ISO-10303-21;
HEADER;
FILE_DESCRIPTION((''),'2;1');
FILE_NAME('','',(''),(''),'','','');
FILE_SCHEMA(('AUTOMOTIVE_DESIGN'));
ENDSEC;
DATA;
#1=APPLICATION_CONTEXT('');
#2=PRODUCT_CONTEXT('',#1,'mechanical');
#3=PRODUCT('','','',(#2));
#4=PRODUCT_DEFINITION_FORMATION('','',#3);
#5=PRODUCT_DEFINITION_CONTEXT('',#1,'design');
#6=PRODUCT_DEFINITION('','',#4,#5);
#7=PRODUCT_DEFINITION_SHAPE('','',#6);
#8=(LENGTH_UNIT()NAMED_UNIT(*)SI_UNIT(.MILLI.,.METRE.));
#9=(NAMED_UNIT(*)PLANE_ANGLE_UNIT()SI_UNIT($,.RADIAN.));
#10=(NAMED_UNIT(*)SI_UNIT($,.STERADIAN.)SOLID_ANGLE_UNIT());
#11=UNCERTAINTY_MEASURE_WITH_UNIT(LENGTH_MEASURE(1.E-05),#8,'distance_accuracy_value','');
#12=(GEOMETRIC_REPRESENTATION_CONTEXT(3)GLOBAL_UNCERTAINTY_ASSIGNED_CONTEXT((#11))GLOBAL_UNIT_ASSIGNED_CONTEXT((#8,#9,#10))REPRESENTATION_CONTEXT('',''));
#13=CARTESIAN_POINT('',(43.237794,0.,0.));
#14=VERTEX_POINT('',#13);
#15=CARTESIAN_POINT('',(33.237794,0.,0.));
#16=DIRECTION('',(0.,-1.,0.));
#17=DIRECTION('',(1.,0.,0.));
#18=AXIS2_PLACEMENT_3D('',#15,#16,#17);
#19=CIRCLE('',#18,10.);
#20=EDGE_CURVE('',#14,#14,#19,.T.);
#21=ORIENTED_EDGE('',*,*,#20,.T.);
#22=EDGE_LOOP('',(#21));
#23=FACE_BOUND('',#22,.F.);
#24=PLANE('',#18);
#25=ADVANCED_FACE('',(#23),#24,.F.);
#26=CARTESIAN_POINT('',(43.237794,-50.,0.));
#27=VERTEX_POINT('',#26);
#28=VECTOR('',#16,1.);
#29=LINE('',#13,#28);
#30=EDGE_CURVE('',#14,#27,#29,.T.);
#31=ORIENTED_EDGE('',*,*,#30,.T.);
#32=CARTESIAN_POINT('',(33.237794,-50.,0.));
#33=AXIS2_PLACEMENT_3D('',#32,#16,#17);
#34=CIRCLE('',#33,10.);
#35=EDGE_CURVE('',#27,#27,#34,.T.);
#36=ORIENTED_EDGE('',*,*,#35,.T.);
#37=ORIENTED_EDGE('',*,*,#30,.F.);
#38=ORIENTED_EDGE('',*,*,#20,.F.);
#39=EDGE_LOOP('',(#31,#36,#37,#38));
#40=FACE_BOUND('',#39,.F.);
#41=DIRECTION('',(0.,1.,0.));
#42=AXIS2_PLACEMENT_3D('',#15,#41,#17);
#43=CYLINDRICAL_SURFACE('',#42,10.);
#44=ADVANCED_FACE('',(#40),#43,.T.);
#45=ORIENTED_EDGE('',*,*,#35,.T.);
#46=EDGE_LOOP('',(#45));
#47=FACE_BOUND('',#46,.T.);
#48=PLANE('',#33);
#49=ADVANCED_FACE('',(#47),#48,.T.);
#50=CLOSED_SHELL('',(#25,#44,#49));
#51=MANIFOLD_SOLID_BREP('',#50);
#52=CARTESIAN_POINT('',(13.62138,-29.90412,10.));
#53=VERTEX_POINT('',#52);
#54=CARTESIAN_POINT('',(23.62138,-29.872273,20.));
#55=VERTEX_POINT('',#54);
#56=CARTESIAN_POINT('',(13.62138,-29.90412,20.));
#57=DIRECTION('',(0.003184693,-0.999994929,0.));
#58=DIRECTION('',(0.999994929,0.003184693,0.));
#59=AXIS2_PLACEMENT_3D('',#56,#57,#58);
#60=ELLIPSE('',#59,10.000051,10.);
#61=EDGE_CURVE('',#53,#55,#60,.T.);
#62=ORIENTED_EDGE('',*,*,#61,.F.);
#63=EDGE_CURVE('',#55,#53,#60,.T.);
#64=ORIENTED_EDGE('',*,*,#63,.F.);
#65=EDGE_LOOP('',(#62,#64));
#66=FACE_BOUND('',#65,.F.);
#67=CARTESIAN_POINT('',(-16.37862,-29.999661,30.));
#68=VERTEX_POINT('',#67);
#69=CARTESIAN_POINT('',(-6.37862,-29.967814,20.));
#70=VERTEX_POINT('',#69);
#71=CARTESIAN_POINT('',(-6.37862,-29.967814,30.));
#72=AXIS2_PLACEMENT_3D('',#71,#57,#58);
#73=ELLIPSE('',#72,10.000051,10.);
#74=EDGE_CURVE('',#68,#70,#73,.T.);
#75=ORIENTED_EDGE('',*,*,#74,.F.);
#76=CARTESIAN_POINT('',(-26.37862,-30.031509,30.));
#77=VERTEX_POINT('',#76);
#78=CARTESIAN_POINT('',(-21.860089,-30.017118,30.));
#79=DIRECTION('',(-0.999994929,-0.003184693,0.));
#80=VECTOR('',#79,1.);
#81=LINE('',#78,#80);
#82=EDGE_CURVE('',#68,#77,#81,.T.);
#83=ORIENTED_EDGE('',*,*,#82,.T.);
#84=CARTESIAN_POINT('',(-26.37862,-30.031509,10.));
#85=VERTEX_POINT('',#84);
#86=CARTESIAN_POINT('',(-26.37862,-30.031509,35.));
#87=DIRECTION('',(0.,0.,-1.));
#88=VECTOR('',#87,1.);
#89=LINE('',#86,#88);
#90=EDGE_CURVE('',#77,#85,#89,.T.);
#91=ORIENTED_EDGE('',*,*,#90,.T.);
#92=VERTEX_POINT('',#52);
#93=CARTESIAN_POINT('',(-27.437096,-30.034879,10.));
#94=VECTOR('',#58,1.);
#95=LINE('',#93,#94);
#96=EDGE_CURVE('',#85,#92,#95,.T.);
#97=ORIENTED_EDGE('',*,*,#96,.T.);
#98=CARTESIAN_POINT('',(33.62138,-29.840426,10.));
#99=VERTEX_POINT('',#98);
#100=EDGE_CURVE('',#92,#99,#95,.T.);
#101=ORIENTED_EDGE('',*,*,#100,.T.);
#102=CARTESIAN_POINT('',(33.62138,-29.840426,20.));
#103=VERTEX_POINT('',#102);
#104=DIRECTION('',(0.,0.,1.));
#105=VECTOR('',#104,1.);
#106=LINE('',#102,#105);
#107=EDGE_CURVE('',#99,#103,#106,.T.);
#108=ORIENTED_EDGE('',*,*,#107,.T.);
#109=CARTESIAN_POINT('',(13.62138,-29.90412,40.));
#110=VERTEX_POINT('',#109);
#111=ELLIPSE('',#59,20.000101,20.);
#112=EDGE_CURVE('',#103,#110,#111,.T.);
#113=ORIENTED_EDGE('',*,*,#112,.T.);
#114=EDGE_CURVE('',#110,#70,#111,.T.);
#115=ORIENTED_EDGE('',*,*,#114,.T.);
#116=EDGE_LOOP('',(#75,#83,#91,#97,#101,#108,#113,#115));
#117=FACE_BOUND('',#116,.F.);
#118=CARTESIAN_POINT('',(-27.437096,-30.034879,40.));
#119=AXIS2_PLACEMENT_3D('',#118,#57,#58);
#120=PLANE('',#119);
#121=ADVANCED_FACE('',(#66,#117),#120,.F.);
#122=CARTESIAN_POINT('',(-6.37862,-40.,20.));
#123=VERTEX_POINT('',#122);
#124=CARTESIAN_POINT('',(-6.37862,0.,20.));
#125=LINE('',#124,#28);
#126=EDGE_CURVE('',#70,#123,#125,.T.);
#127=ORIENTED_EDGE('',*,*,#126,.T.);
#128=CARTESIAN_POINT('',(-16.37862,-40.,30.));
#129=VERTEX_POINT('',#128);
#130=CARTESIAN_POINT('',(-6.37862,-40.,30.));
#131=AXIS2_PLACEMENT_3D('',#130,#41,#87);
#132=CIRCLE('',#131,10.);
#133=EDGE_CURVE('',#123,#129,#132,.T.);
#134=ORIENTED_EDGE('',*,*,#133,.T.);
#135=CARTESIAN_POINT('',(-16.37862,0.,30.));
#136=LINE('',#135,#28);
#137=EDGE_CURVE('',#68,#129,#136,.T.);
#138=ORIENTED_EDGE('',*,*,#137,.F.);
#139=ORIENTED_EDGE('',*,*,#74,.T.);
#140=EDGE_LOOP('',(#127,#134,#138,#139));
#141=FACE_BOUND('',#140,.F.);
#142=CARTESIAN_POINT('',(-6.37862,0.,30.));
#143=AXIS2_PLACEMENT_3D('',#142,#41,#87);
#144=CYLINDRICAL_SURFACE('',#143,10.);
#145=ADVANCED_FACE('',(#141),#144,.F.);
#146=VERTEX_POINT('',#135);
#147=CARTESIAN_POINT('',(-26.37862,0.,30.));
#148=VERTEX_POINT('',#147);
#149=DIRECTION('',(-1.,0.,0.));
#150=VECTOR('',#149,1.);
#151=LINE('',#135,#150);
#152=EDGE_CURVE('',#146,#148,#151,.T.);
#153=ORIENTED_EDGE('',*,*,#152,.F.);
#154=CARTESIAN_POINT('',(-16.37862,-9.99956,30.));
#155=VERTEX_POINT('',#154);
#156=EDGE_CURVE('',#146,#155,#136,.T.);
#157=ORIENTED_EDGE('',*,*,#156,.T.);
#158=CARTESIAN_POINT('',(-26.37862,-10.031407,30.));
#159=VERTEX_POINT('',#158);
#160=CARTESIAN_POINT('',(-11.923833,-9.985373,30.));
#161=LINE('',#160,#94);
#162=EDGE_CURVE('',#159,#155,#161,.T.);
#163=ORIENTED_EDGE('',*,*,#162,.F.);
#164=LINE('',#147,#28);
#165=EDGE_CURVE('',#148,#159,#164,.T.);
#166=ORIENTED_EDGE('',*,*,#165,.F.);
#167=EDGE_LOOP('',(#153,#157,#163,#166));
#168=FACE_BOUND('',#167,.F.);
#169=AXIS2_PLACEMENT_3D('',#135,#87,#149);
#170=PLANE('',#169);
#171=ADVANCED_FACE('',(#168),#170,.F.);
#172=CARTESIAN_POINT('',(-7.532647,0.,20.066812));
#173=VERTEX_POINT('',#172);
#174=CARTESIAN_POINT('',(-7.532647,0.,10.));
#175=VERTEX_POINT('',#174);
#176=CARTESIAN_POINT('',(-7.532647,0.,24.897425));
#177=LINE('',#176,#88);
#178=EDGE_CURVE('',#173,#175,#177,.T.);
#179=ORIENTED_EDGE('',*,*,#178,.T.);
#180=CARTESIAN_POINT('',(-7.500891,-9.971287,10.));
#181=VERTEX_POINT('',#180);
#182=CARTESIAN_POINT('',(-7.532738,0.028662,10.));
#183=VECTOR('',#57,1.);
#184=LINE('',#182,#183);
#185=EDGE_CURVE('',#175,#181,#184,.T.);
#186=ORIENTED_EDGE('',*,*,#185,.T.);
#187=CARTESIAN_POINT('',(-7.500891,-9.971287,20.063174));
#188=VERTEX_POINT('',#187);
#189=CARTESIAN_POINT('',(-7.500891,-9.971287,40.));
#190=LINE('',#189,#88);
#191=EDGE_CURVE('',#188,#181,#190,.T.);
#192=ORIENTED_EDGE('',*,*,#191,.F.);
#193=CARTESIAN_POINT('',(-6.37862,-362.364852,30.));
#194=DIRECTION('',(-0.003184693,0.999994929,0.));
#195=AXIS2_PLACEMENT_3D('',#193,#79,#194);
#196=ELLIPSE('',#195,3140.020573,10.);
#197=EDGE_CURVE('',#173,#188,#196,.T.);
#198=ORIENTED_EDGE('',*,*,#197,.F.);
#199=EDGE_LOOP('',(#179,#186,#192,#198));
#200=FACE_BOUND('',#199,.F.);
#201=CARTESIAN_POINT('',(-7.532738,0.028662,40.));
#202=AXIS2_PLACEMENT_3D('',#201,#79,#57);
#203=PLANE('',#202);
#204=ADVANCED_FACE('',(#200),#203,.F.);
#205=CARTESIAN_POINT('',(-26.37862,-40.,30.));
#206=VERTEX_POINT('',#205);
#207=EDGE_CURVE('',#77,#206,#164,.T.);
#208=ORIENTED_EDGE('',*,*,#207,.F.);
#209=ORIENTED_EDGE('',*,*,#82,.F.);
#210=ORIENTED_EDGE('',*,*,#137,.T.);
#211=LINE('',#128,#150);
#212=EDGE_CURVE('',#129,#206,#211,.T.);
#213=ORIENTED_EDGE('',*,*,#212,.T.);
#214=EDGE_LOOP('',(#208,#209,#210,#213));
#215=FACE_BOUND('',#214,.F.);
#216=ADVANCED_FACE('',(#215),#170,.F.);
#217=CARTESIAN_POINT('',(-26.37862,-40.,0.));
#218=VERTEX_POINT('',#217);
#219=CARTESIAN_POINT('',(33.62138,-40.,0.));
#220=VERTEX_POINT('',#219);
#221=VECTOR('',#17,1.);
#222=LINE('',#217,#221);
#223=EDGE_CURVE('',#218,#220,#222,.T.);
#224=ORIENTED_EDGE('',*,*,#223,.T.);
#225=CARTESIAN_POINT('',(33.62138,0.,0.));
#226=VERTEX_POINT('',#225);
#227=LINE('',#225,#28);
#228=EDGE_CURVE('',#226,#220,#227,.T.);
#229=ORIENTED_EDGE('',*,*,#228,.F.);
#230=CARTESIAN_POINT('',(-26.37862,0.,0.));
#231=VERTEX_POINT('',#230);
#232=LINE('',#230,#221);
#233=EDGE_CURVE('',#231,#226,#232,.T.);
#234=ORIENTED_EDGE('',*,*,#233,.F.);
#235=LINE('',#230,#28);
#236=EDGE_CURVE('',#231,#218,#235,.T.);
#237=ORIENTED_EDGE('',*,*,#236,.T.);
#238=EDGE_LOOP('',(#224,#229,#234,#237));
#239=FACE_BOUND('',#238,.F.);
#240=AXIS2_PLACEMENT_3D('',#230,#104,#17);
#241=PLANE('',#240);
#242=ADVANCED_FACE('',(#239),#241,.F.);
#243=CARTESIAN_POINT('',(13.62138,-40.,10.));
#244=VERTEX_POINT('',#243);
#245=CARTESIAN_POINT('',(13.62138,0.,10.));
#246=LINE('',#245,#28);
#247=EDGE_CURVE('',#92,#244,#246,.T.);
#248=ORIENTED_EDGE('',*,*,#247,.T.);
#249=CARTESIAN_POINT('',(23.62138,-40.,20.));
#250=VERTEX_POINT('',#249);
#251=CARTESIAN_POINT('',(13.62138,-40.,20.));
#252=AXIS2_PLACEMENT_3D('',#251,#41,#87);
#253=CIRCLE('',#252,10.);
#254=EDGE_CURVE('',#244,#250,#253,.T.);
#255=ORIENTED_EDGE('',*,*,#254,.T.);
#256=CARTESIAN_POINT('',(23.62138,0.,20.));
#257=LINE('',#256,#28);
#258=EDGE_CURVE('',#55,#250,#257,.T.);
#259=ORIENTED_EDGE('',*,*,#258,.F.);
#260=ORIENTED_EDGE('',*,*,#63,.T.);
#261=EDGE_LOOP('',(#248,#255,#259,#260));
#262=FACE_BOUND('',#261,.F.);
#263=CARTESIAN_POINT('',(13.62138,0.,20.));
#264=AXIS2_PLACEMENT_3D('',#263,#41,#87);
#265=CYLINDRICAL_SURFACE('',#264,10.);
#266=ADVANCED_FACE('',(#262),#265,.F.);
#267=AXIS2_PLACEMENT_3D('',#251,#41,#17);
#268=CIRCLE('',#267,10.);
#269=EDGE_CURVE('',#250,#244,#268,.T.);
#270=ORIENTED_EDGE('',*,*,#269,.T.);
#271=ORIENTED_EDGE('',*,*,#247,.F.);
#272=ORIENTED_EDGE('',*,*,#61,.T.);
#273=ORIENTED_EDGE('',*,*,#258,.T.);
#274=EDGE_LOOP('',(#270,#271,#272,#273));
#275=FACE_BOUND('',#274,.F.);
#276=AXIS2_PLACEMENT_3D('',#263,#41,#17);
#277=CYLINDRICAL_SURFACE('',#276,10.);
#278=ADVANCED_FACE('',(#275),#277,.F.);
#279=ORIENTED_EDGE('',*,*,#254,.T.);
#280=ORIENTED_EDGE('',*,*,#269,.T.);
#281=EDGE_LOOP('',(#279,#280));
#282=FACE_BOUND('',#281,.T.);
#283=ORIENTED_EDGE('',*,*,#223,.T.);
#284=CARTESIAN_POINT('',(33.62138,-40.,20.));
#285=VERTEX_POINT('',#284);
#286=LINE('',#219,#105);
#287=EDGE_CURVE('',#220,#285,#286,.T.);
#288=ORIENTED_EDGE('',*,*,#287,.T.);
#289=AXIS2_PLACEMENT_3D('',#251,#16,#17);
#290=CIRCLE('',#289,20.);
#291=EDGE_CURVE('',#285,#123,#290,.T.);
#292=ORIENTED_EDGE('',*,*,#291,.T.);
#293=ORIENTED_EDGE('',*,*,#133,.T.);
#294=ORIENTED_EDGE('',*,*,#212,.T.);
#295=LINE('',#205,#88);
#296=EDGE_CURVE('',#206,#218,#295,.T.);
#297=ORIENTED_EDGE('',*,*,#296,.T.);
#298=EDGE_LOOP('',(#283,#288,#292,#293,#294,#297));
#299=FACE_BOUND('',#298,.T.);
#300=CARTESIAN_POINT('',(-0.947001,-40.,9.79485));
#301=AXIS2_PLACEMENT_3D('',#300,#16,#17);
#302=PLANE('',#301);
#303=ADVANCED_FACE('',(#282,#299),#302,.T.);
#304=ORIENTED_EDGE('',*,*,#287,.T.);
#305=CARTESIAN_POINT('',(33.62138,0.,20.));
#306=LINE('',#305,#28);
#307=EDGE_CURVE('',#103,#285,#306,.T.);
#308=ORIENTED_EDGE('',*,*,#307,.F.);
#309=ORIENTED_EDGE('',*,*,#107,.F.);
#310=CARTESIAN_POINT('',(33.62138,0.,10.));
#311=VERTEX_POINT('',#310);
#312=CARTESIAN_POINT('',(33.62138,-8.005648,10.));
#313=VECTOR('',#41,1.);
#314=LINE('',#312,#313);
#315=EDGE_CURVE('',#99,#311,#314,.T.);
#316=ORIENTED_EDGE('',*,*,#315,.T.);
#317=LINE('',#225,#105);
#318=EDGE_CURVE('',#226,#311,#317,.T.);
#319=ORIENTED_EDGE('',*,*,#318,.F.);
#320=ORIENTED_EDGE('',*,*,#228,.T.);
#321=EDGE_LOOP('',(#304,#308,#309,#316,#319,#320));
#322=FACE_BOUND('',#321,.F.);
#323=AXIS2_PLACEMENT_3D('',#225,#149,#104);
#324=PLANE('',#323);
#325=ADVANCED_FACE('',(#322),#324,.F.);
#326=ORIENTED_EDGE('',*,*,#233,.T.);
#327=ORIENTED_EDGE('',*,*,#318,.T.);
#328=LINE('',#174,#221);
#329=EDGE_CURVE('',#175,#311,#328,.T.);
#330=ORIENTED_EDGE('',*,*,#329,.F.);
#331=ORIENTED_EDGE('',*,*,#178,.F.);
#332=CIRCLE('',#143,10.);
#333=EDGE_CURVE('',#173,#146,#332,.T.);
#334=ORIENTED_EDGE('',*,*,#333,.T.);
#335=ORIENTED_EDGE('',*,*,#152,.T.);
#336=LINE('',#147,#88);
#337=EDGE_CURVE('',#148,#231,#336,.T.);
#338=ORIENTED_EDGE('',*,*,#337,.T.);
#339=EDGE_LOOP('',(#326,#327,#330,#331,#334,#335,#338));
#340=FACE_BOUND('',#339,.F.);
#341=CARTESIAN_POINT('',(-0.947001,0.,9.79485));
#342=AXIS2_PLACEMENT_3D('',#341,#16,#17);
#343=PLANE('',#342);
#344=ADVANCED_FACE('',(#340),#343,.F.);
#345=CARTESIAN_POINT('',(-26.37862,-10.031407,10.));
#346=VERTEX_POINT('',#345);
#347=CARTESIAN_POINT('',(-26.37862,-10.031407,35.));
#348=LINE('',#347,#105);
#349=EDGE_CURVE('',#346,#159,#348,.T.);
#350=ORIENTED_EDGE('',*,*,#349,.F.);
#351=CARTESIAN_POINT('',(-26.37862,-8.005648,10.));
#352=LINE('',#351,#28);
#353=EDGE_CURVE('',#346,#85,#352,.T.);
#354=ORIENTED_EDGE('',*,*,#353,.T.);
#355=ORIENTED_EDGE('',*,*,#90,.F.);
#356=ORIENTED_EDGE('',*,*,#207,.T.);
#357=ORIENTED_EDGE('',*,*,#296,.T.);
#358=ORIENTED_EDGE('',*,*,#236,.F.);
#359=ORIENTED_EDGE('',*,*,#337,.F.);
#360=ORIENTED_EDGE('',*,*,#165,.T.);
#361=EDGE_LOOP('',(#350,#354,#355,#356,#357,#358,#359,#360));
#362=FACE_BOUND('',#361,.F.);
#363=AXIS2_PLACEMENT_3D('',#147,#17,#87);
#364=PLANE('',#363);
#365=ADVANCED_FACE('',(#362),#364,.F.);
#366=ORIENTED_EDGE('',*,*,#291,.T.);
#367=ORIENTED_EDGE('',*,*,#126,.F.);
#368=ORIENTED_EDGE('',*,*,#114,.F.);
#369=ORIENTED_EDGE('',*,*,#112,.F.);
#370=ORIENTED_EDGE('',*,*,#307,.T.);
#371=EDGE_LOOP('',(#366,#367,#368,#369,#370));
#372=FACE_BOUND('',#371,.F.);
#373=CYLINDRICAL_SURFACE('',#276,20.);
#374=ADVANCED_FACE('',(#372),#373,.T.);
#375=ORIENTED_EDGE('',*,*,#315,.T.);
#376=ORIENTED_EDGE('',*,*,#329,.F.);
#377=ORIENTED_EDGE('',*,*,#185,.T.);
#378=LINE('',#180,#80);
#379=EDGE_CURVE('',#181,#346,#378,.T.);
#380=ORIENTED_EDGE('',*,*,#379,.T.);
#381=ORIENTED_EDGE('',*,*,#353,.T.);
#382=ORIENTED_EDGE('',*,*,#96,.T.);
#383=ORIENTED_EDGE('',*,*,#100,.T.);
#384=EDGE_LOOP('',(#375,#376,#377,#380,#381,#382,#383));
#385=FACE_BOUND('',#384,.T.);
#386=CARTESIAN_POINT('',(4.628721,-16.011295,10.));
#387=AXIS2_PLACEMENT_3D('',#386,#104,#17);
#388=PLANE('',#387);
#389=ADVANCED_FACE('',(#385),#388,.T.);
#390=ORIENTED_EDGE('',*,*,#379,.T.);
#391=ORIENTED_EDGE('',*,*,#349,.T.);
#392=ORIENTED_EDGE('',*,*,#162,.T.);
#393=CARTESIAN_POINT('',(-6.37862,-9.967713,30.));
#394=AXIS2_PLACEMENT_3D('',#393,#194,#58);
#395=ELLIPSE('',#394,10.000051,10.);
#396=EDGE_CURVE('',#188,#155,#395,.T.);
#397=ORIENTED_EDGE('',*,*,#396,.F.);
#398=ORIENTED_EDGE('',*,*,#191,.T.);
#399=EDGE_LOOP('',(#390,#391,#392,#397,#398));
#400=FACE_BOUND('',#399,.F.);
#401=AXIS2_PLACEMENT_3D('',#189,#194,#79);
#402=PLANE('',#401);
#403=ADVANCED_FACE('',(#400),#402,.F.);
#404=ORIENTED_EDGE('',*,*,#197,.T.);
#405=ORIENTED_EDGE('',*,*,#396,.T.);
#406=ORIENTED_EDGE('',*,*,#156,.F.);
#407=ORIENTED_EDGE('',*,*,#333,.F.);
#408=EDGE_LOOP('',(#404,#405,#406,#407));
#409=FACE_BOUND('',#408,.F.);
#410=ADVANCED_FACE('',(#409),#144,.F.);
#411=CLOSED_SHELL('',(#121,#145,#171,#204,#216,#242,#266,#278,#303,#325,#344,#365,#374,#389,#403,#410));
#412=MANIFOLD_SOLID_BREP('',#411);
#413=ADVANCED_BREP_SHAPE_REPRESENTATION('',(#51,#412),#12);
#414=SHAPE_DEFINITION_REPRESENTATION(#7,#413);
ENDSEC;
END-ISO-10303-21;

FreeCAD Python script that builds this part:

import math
import FreeCAD as App
import Part
import Sketcher

V = App.Vector
Q = App.Units.Quantity


def add_polygon(sketch, points):
    """Adds a closed chain of lines whose ends are joined by coincident constraints."""
    first, n = sketch.GeometryCount, len(points)
    for a, b in zip(points, points[1:] + points[:1]):
        sketch.addGeometry(Part.LineSegment(App.Vector(*a, 0), App.Vector(*b, 0)), False)
    for i in range(n):
        sketch.addConstraint(Sketcher.Constraint("Coincident", first + i, 2, first + (i + 1) % n, 1))

doc = App.newDocument("Part")
params = doc.addObject("Spreadsheet::Sheet", "Params")
for row, (alias, value) in enumerate([
    ("sketch1_radius", "20 mm"),
    ("sketch1_radius2", "10 mm"),
    ("sketch1_width", "60 mm"),
    ("sketch1_height", "30 mm"),
    ("sketch1_height2", "20 mm"),
    ("pad1_length", "40 mm"),
    ("sketch2_length", "10 mm"),
    ("sketch2_length2", "20 mm"),
    ("sketch2_length3", "62 mm"),
    ("pocket1_length", "30 mm"),
    ("sketch3_diameter", "20 mm"),
    ("pad2_length", "50 mm"),
], start=1):
    params.set(f"A{row}", alias)
    params.set(f"B{row}", "=" + value)
    params.setAlias(f"B{row}", alias)

body = doc.addObject("PartDesign::Body", "Body")

# Sketch on XZ plane
sketch1 = body.newObject("Sketcher::SketchObject", "Sketch")
sketch1.AttachmentSupport = (doc.getObject("XZ_Plane"), [""])
sketch1.MapMode = "FlatFace"
sketch1.addGeometry(Part.LineSegment(V(-26.37862, 30, 0), V(-26.37862, 0, 0)), False)
sketch1.addGeometry(Part.LineSegment(V(-26.37862, 0, 0), V(33.62138, 0, 0)), False)
sketch1.addGeometry(Part.LineSegment(V(33.62138, 0, 0), V(33.62138, 20, 0)), False)
sketch1.addGeometry(Part.ArcOfCircle(Part.Circle(V(13.62138, 20, 0), V(0, 0, 1), 20), math.radians(0), math.radians(180)), False)
sketch1.addGeometry(Part.ArcOfCircle(Part.Circle(V(-6.37862, 30, 0), V(0, 0, 1), 10), math.radians(180), math.radians(270)), False)
sketch1.addGeometry(Part.LineSegment(V(-16.37862, 30, 0), V(-26.37862, 30, 0)), False)
sketch1.addGeometry(Part.ArcOfCircle(Part.Circle(V(13.62138, 20, 0), V(0, 0, 1), 10), math.radians(0), math.radians(270)), False)
sketch1.addGeometry(Part.ArcOfCircle(Part.Circle(V(13.62138, 20, 0), V(0, 0, 1), 10), math.radians(-90), math.radians(0)), False)
sketch1.addConstraint(Sketcher.Constraint("Coincident", 0, 2, 1, 1))
sketch1.addConstraint(Sketcher.Constraint("Coincident", 1, 2, 2, 1))
sketch1.addConstraint(Sketcher.Constraint("Tangent", 2, 2, 3, 1))
sketch1.addConstraint(Sketcher.Constraint("Coincident", 3, 2, 4, 2))
sketch1.addConstraint(Sketcher.Constraint("Coincident", 4, 1, 5, 1))
sketch1.addConstraint(Sketcher.Constraint("Coincident", 5, 2, 0, 1))
sketch1.addConstraint(Sketcher.Constraint("Tangent", 6, 1, 7, 2))
sketch1.addConstraint(Sketcher.Constraint("Coincident", 7, 1, 6, 2))
sketch1.addConstraint(Sketcher.Constraint("Vertical", 0))
sketch1.addConstraint(Sketcher.Constraint("Horizontal", 1))
sketch1.addConstraint(Sketcher.Constraint("Vertical", 2))
sketch1.addConstraint(Sketcher.Constraint("Horizontal", 5))
sketch1.addConstraint(Sketcher.Constraint("Coincident", 6, 3, 3, 3))
sketch1.addConstraint(Sketcher.Constraint("Equal", 4, 6))
sketch1.addConstraint(Sketcher.Constraint("PointOnObject", 0, 2, -1))
sketch1.addConstraint(Sketcher.Constraint("Horizontal", 2, 2, 3, 2))
sketch1.addConstraint(Sketcher.Constraint("Horizontal", 3, 2, 6, 1))
sketch1.addConstraint(Sketcher.Constraint("Vertical", 4, 3, 3, 2))
sketch1.addConstraint(Sketcher.Constraint("Vertical", 6, 3, 7, 1))
sketch1.addConstraint(Sketcher.Constraint("Radius", 3, Q("20 mm")))
sketch1.addConstraint(Sketcher.Constraint("Radius", 4, Q("10 mm")))
sketch1.addConstraint(Sketcher.Constraint("DistanceX", 1, 1, 1, 2, Q("60 mm")))
sketch1.addConstraint(Sketcher.Constraint("DistanceY", 0, 2, 0, 1, Q("30 mm")))
sketch1.addConstraint(Sketcher.Constraint("DistanceY", 2, 1, 2, 2, Q("20 mm")))
sketch1.addConstraint(Sketcher.Constraint("DistanceX", -1, 1, 3, 3, Q("13.62138 mm")))
sketch1.setExpression("Constraints[19]", "Params.sketch1_radius")
sketch1.setExpression("Constraints[20]", "Params.sketch1_radius2")
sketch1.setExpression("Constraints[21]", "Params.sketch1_width")
sketch1.setExpression("Constraints[22]", "Params.sketch1_height")
sketch1.setExpression("Constraints[23]", "Params.sketch1_height2")
pad1 = body.newObject("PartDesign::Pad", "Pad")
pad1.Profile = sketch1
pad1.setExpression("Length", "Params.pad1_length")

# Sketch on XY plane
sketch2 = body.newObject("Sketcher::SketchObject", "Sketch001")
sketch2.AttachmentSupport = (doc.getObject("XY_Plane"), [""])
sketch2.MapMode = "FlatFace"
sketch2.AttachmentOffset = App.Placement(V(0, 0, 40), App.Rotation())
add_polygon(sketch2, [(34.56259, -29.837429), (34.56259, 0.162724), (-7.532738, 0.028662), (-7.500891, -9.971287), (-27.50079, -10.034981), (-27.437096, -30.034879)])  # lines 0-5
sketch2.addConstraint(Sketcher.Constraint("Vertical", 0))
sketch2.addConstraint(Sketcher.Constraint("Perpendicular", 1, 2))
sketch2.addConstraint(Sketcher.Constraint("Perpendicular", 2, 3))
sketch2.addConstraint(Sketcher.Constraint("Perpendicular", 3, 4))
sketch2.addConstraint(Sketcher.Constraint("Perpendicular", 4, 5))
sketch2.addConstraint(Sketcher.Constraint("Equal", 3, 4))
sketch2.addConstraint(Sketcher.Constraint("Distance", 2, Q("10 mm")))
sketch2.addConstraint(Sketcher.Constraint("Distance", 3, Q("20 mm")))
sketch2.addConstraint(Sketcher.Constraint("Distance", 5, Q("62 mm")))
sketch2.addConstraint(Sketcher.Constraint("Distance", 1, Q("42.095541 mm")))
sketch2.addConstraint(Sketcher.Constraint("DistanceX", -1, 1, 0, 2, Q("34.56259 mm")))
sketch2.addConstraint(Sketcher.Constraint("DistanceY", 3, 2, -1, 1, Q("10.034981 mm")))
sketch2.setExpression("Constraints[12]", "Params.sketch2_length")
sketch2.setExpression("Constraints[13]", "Params.sketch2_length2")
sketch2.setExpression("Constraints[14]", "Params.sketch2_length3")
pocket1 = body.newObject("PartDesign::Pocket", "Pocket")
pocket1.Profile = sketch2
pocket1.setExpression("Length", "Params.pocket1_length")
body2 = doc.addObject("PartDesign::Body", "Body001")

# Sketch on XZ plane
sketch3 = body2.newObject("Sketcher::SketchObject", "Sketch002")
sketch3.AttachmentSupport = (doc.getObject("XZ_Plane001"), [""])
sketch3.MapMode = "FlatFace"
sketch3.addGeometry(Part.Circle(V(33.237794, 0, 0), V(0, 0, 1), 10), False)
sketch3.addConstraint(Sketcher.Constraint("PointOnObject", 0, 3, -1))
sketch3.addConstraint(Sketcher.Constraint("Diameter", 0, Q("20 mm")))
sketch3.addConstraint(Sketcher.Constraint("DistanceX", -1, 1, 0, 3, Q("33.237794 mm")))
sketch3.setExpression("Constraints[1]", "Params.sketch3_diameter")
pad2 = body2.newObject("PartDesign::Pad", "Pad001")
pad2.Profile = sketch3
pad2.setExpression("Length", "Params.pad2_length")

doc.recompute()
